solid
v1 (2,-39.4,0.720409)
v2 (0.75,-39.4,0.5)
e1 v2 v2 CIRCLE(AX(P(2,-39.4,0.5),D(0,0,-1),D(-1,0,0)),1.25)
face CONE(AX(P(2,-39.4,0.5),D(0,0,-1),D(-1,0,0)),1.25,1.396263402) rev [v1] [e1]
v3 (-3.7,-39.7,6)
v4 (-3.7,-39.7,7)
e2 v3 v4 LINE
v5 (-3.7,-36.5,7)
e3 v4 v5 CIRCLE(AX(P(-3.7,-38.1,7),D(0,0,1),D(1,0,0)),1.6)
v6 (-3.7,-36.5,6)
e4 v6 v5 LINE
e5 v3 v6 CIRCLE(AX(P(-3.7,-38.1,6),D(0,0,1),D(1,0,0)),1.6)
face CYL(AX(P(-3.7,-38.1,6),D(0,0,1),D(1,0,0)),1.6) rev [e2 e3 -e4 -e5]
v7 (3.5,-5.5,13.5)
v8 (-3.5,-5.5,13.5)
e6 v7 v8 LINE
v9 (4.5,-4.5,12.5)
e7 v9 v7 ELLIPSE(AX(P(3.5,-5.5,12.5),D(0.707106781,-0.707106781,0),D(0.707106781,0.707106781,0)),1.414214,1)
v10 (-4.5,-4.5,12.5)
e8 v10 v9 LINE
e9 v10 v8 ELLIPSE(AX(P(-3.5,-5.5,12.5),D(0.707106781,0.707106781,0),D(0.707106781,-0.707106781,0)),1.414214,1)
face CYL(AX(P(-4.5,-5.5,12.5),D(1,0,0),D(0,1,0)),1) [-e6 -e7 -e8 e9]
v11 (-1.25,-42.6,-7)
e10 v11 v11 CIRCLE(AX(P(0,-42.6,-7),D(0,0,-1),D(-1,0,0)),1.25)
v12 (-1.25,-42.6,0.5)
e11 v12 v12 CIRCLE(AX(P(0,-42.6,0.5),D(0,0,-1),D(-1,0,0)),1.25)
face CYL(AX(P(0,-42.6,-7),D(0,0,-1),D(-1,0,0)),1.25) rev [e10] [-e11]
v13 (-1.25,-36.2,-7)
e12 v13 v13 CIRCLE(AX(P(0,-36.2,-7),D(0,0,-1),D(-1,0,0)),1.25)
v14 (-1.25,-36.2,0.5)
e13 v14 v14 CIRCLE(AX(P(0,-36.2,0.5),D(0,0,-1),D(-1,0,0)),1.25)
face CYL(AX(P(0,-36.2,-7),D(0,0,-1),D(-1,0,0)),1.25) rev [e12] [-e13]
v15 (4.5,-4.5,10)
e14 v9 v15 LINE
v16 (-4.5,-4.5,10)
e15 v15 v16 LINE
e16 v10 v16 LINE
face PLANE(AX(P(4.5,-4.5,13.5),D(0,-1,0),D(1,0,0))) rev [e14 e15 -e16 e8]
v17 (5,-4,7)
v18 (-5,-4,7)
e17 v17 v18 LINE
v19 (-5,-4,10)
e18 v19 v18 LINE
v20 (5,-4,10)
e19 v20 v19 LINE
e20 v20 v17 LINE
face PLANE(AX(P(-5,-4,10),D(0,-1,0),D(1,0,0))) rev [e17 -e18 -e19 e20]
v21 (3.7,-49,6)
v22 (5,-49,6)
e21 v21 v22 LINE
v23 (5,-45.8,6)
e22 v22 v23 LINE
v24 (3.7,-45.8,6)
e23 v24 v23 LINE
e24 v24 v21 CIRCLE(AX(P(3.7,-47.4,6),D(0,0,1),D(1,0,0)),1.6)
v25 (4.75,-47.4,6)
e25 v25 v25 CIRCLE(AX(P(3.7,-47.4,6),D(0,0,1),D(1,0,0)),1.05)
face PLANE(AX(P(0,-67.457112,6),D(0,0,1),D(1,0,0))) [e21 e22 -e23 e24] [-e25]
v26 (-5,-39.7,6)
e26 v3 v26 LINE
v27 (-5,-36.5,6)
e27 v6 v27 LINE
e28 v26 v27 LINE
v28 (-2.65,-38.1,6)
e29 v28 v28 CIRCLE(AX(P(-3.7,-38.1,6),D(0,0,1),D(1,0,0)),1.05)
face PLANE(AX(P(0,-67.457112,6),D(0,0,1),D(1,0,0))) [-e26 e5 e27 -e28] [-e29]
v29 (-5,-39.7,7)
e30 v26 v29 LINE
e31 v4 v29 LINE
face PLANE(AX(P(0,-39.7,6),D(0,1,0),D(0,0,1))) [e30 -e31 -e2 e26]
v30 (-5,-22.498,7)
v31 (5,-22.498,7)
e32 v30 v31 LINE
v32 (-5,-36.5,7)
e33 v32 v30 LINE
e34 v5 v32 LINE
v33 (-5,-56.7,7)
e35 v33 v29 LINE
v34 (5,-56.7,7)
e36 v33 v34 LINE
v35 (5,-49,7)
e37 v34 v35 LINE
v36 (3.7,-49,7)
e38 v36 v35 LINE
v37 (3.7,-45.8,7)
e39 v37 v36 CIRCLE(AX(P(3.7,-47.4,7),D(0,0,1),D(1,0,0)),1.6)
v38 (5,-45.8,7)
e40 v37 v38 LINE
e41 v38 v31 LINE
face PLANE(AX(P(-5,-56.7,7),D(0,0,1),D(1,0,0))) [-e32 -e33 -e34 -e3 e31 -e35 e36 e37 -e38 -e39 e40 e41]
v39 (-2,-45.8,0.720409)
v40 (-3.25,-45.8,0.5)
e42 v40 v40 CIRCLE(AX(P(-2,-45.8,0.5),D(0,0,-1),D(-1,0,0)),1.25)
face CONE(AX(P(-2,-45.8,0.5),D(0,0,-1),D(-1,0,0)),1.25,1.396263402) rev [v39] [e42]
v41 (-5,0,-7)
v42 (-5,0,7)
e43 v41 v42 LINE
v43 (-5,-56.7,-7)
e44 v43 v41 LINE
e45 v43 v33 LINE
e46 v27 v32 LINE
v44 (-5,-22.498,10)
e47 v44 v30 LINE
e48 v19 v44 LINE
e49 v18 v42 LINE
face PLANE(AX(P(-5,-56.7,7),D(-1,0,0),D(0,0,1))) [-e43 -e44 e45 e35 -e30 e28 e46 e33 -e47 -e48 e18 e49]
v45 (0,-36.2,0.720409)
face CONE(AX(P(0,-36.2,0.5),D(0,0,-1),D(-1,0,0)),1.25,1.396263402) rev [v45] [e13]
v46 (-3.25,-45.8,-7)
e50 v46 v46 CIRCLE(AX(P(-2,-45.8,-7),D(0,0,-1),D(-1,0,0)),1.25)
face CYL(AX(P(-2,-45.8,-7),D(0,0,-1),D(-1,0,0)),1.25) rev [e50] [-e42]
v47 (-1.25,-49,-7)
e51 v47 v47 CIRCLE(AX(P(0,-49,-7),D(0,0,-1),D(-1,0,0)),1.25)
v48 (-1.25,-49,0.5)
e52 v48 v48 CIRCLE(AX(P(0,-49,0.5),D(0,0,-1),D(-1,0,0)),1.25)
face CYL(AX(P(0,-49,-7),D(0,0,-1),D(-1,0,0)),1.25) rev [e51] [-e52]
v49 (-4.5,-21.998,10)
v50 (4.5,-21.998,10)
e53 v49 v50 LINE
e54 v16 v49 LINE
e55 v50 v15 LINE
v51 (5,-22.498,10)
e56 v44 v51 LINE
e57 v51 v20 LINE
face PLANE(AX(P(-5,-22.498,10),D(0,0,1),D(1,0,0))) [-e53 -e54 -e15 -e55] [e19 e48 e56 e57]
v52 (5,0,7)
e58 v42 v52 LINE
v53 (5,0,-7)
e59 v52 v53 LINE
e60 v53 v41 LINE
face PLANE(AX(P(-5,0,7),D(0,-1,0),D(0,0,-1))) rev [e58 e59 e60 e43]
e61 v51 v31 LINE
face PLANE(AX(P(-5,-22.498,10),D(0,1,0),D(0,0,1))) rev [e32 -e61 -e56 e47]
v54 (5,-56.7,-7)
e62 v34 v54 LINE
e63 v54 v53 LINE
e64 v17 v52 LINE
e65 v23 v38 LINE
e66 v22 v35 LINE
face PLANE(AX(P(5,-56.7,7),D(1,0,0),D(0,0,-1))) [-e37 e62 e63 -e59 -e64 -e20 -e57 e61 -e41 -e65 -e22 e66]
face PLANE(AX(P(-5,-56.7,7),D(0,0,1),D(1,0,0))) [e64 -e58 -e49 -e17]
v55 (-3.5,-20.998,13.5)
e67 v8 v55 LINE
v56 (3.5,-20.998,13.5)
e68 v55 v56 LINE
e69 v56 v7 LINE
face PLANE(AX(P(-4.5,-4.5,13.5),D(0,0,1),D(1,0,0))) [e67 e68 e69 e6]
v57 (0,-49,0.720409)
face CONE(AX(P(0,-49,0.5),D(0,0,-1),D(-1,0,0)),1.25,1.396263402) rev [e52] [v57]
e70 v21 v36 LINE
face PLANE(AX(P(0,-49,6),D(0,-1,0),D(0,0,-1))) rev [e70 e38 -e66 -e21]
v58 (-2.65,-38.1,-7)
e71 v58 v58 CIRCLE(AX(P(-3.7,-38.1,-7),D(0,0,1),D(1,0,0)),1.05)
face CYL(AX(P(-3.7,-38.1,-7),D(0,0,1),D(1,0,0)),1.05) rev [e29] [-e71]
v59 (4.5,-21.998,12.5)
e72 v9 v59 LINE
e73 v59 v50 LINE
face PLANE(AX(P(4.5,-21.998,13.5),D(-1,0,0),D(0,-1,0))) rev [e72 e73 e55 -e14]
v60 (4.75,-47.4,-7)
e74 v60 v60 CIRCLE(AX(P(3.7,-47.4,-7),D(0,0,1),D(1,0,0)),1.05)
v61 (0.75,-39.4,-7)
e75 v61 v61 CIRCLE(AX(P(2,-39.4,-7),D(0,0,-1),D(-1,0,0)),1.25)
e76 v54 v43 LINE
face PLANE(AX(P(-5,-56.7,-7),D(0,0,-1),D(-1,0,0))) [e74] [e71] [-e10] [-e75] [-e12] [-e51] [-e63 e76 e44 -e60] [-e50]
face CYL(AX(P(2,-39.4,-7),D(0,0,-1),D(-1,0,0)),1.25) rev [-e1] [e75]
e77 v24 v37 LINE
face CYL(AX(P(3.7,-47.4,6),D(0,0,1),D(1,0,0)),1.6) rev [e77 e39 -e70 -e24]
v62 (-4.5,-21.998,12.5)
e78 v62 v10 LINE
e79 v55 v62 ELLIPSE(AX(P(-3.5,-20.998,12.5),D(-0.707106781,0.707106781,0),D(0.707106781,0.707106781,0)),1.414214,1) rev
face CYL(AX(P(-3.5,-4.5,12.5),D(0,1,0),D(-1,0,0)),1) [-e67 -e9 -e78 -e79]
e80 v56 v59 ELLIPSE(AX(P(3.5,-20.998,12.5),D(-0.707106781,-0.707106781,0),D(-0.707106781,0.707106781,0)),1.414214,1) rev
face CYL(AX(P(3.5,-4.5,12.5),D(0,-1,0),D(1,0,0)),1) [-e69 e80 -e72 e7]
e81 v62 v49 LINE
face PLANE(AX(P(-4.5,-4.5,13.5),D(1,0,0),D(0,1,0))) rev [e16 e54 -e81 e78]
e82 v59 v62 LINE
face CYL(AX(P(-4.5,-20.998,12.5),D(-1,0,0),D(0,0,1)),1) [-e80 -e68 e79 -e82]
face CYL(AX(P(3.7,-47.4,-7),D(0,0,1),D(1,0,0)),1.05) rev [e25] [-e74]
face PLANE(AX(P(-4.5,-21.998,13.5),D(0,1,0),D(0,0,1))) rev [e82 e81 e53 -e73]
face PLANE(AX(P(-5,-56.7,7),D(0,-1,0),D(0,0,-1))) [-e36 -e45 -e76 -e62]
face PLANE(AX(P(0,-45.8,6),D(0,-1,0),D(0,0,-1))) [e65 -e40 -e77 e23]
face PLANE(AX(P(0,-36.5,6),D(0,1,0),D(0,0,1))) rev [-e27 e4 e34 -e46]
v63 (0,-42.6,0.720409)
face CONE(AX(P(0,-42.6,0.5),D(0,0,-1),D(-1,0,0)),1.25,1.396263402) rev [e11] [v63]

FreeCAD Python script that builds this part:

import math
import FreeCAD as App
import Part
import Sketcher


def edges_at(feature, points):
    """Names of the edges that pass closest to the given points."""
    edges = feature.Shape.Edges
    near = lambda p: min(range(len(edges)), key=lambda i: edges[i].distToShape(Part.Vertex(*p))[0])
    return sorted({f"Edge{near(p) + 1}" for p in points})

doc = App.newDocument("Part")
params = doc.addObject("Spreadsheet::Sheet", "Params")
for row, (alias, value) in enumerate([
    ("sketch1_width", "10 mm"),
    ("sketch1_height", "14 mm"),
    ("pad1_length", "56.7 mm"),
    ("sketch2_width", "10 mm"),
    ("pad2_length", "3 mm"),
    ("sketch3_diameter", "2.5 mm"),
    ("hole_diameter", "2.5 mm"),
    ("hole_depth", "7.5 mm"),
    ("sketch4_diameter", "2.1 mm"),
    ("sketch5_diameter", "2.1 mm"),
    ("sketch5_radius", "1.6 mm"),
    ("sketch5_width", "1.3 mm"),
    ("pocket2_length", "1 mm"),
    ("sketch6_width", "9 mm"),
    ("pad3_length", "3.5 mm"),
    ("fillet_radius", "1 mm"),
], start=1):
    params.set(f"A{row}", alias)
    params.set(f"B{row}", "=" + value)
    params.setAlias(f"B{row}", alias)

body = doc.addObject("PartDesign::Body", "Body")

sketch1 = body.newObject("Sketcher::SketchObject", "Sketch")
sketch1.AttachmentSupport = (doc.getObject("XZ_Plane"), [""])
sketch1.MapMode = "FlatFace"
sketch1.addGeometry([
    Part.LineSegment(App.Vector(-5, -7, 0), App.Vector(-5, 7, 0)),
    Part.LineSegment(App.Vector(-5, 7, 0), App.Vector(5, 7, 0)),
    Part.LineSegment(App.Vector(5, 7, 0), App.Vector(5, -7, 0)),
    Part.LineSegment(App.Vector(5, -7, 0), App.Vector(-5, -7, 0)),
], False)
sketch1.addConstraint([
    Sketcher.Constraint("Coincident", 0, 2, 1, 1),
    Sketcher.Constraint("Coincident", 1, 2, 2, 1),
    Sketcher.Constraint("Coincident", 2, 2, 3, 1),
    Sketcher.Constraint("Coincident", 3, 2, 0, 1),
    Sketcher.Constraint("Vertical", 0),
    Sketcher.Constraint("Horizontal", 1),
    Sketcher.Constraint("Vertical", 2),
    Sketcher.Constraint("Horizontal", 3),
    Sketcher.Constraint("Symmetric", 0, 2, 2, 2, -1, 1),
    Sketcher.Constraint("DistanceX", 1, 1, 1, 2, 10.0),
    Sketcher.Constraint("DistanceY", 0, 1, 0, 2, 14.0),
])
sketch1.setExpression("Constraints[9]", "Params.sketch1_width")
sketch1.setExpression("Constraints[10]", "Params.sketch1_height")
pad1 = body.newObject("PartDesign::Pad", "Pad")
pad1.Profile = sketch1
pad1.setExpression("Length", "Params.pad1_length")

sketch2 = body.newObject("Sketcher::SketchObject", "Sketch001")
sketch2.AttachmentSupport = (doc.getObject("XY_Plane"), [""])
sketch2.MapMode = "FlatFace"
sketch2.AttachmentOffset = App.Placement(App.Vector(0, 0, 7), App.Rotation())
sketch2.addGeometry([
    Part.LineSegment(App.Vector(-5, -4, 0), App.Vector(-5, -22, 0)),
    Part.LineSegment(App.Vector(-5, -22, 0), App.Vector(5, -22, 0)),
    Part.LineSegment(App.Vector(5, -22, 0), App.Vector(5, -4, 0)),
    Part.LineSegment(App.Vector(5, -4, 0), App.Vector(-5, -4, 0)),
], False)
sketch2.addConstraint([
    Sketcher.Constraint("Coincident", 0, 2, 1, 1),
    Sketcher.Constraint("Coincident", 1, 2, 2, 1),
    Sketcher.Constraint("Coincident", 2, 2, 3, 1),
    Sketcher.Constraint("Coincident", 3, 2, 0, 1),
    Sketcher.Constraint("Vertical", 0),
    Sketcher.Constraint("Horizontal", 1),
    Sketcher.Constraint("Vertical", 2),
    Sketcher.Constraint("Horizontal", 3),
    Sketcher.Constraint("DistanceX", 1, 1, 1, 2, 10.0),
    Sketcher.Constraint("DistanceX", 0, 2, -1, 1, 5.0),
    Sketcher.Constraint("DistanceY", 2, 2, -1, 1, 4.0),
    Sketcher.Constraint("DistanceY", 0, 2, 0, 1, 18.498),
])
sketch2.setExpression("Constraints[8]", "Params.sketch2_width")
pad2 = body.newObject("PartDesign::Pad", "Pad001")
pad2.Profile = sketch2
pad2.setExpression("Length", "Params.pad2_length")

sketch3 = body.newObject("Sketcher::SketchObject", "Sketch002")
sketch3.AttachmentSupport = (doc.getObject("XY_Plane"), [""])
sketch3.MapMode = "FlatFace"
sketch3.AttachmentOffset = App.Placement(App.Vector(0, 0, -7), App.Rotation())
sketch3.addGeometry([
    Part.Circle(App.Vector(0, -36.2, 0), App.Vector(0, 0, 1), 1.2),
    Part.Circle(App.Vector(0, -42.6, 0), App.Vector(0, 0, 1), 1.2),
    Part.Circle(App.Vector(0, -49, 0), App.Vector(0, 0, 1), 1.2),
    Part.Circle(App.Vector(-2, -45.8, 0), App.Vector(0, 0, 1), 1.2),
    Part.Circle(App.Vector(2, -39.4, 0), App.Vector(0, 0, 1), 1.2),
], False)
sketch3.addConstraint([
    Sketcher.Constraint("Equal", 0, 1),
    Sketcher.Constraint("Equal", 1, 2),
    Sketcher.Constraint("Equal", 2, 3),
    Sketcher.Constraint("Equal", 3, 4),
    Sketcher.Constraint("PointOnObject", 0, 3, -2),
    Sketcher.Constraint("PointOnObject", 1, 3, -2),
    Sketcher.Constraint("PointOnObject", 2, 3, -2),
    Sketcher.Constraint("Diameter", 0, 2.5),
    Sketcher.Constraint("DistanceY", 2, 3, -1, 1, 49.0),
    Sketcher.Constraint("DistanceX", 3, 3, -1, 1, 2.0),
    Sketcher.Constraint("DistanceX", -1, 1, 4, 3, 2.0),
    Sketcher.Constraint("DistanceY", 0, 3, -1, 1, 36.2),
    Sketcher.Constraint("DistanceY", 1, 3, -1, 1, 42.6),
    Sketcher.Constraint("DistanceY", 3, 3, -1, 1, 45.8),
    Sketcher.Constraint("DistanceY", 4, 3, -1, 1, 39.4),
])
sketch3.setExpression("Constraints[7]", "Params.sketch3_diameter")
doc.recompute()
hole = body.newObject("PartDesign::Hole", "Hole")
hole.Profile = sketch3
hole.ThreadType = "None"
hole.setExpression("Diameter", "Params.hole_diameter")
hole.DepthType = "Dimension"
hole.setExpression("Depth", "Params.hole_depth")
hole.DrillPoint = "Angled"
hole.DrillPointAngle = 160
hole.Reversed = True

sketch4 = body.newObject("Sketcher::SketchObject", "Sketch003")
sketch4.AttachmentSupport = (doc.getObject("XY_Plane"), [""])
sketch4.MapMode = "FlatFace"
sketch4.AttachmentOffset = App.Placement(App.Vector(0, 0, 7), App.Rotation())
sketch4.addGeometry([
    Part.Circle(App.Vector(-3.7, -38.1, 0), App.Vector(0, 0, 1), 1.1),
    Part.Circle(App.Vector(3.7, -47.4, 0), App.Vector(0, 0, 1), 1.1),
], False)
sketch4.addConstraint([
    Sketcher.Constraint("Equal", 0, 1),
    Sketcher.Constraint("Diameter", 0, 2.1),
    Sketcher.Constraint("DistanceX", 0, 3, -1, 1, 3.7),
    Sketcher.Constraint("DistanceY", 0, 3, -1, 1, 38.1),
    Sketcher.Constraint("DistanceX", -1, 1, 1, 3, 3.7),
    Sketcher.Constraint("DistanceY", 1, 3, -1, 1, 47.4),
])
sketch4.setExpression("Constraints[1]", "Params.sketch4_diameter")
pocket1 = body.newObject("PartDesign::Pocket", "Pocket")
pocket1.Profile = sketch4
pocket1.Type = "ThroughAll"

sketch5 = body.newObject("Sketcher::SketchObject", "Sketch004")
sketch5.AttachmentSupport = (doc.getObject("XY_Plane"), [""])
sketch5.MapMode = "FlatFace"
sketch5.AttachmentOffset = App.Placement(App.Vector(0, 0, 7), App.Rotation())
sketch5.addGeometry([
    Part.ArcOfCircle(Part.Circle(App.Vector(-3.7, -38.1, 0), App.Vector(0, 0, 1), 1.6), math.radians(0), math.radians(90)),
    Part.LineSegment(App.Vector(-3.7, -36.5, 0), App.Vector(-5, -36.5, 0)),
    Part.LineSegment(App.Vector(-5, -36.5, 0), App.Vector(-5, -39.7, 0)),
    Part.LineSegment(App.Vector(-5, -39.7, 0), App.Vector(-3.7, -39.7, 0)),
    Part.ArcOfCircle(Part.Circle(App.Vector(-3.7, -38.1, 0), App.Vector(0, 0, 1), 1.6), math.radians(-90), math.radians(0)),
    Part.Circle(App.Vector(-3.7, -38.1, 0), App.Vector(0, 0, 1), 1.1),
    Part.LineSegment(App.Vector(5, -45.8, 0), App.Vector(3.7, -45.8, 0)),
    Part.ArcOfCircle(Part.Circle(App.Vector(3.7, -47.4, 0), App.Vector(0, 0, 1), 1.6), math.radians(90), math.radians(270)),
    Part.LineSegment(App.Vector(3.7, -49, 0), App.Vector(5, -49, 0)),
    Part.LineSegment(App.Vector(5, -49, 0), App.Vector(5, -45.8, 0)),
    Part.Circle(App.Vector(3.7, -47.4, 0), App.Vector(0, 0, 1), 1.1),
], False)
sketch5.addConstraint([
    Sketcher.Constraint("Tangent", 0, 2, 1, 1),
    Sketcher.Constraint("Coincident", 1, 2, 2, 1),
    Sketcher.Constraint("Coincident", 2, 2, 3, 1),
    Sketcher.Constraint("Tangent", 3, 2, 4, 1),
    Sketcher.Constraint("Tangent", 4, 2, 0, 1),
    Sketcher.Constraint("Tangent", 6, 2, 7, 1),
    Sketcher.Constraint("Tangent", 7, 2, 8, 1),
    Sketcher.Constraint("Coincident", 8, 2, 9, 1),
    Sketcher.Constraint("Coincident", 9, 2, 6, 1),
    Sketcher.Constraint("Horizontal", 1),
    Sketcher.Constraint("Vertical", 2),
    Sketcher.Constraint("Horizontal", 3),
    Sketcher.Constraint("Horizontal", 6),
    Sketcher.Constraint("Horizontal", 8),
    Sketcher.Constraint("Vertical", 9),
    Sketcher.Constraint("Coincident", 5, 3, 0, 3),
    Sketcher.Constraint("Coincident", 10, 3, 7, 3),
    Sketcher.Constraint("Equal", 0, 4),
    Sketcher.Constraint("Equal", 4, 7),
    Sketcher.Constraint("Equal", 5, 10),
    Sketcher.Constraint("Horizontal", 5, 3, 4, 2),
    Sketcher.Constraint("Equal", 3, 6),
    Sketcher.Constraint("Diameter", 5, 2.1),
    Sketcher.Constraint("Radius", 0, 1.6),
    Sketcher.Constraint("DistanceX", 1, 2, 1, 1, 1.3),
    Sketcher.Constraint("DistanceX", 1, 2, -1, 1, 5.0),
    Sketcher.Constraint("DistanceY", 7, 2, -1, 1, 49.0),
    Sketcher.Constraint("DistanceX", -1, 1, 8, 2, 5.0),
    Sketcher.Constraint("DistanceY", 0, 3, -1, 1, 38.1),
])
sketch5.setExpression("Constraints[22]", "Params.sketch5_diameter")
sketch5.setExpression("Constraints[23]", "Params.sketch5_radius")
sketch5.setExpression("Constraints[24]", "Params.sketch5_width")
pocket2 = body.newObject("PartDesign::Pocket", "Pocket001")
pocket2.Profile = sketch5
pocket2.setExpression("Length", "Params.pocket2_length")

sketch6 = body.newObject("Sketcher::SketchObject", "Sketch005")
sketch6.AttachmentSupport = (doc.getObject("XY_Plane"), [""])
sketch6.MapMode = "FlatFace"
sketch6.AttachmentOffset = App.Placement(App.Vector(0, 0, 10), App.Rotation())
sketch6.addGeometry([
    Part.LineSegment(App.Vector(-4, -4, 0), App.Vector(-4, -22, 0)),
    Part.LineSegment(App.Vector(-4, -22, 0), App.Vector(4, -22, 0)),
    Part.LineSegment(App.Vector(4, -22, 0), App.Vector(4, -4, 0)),
    Part.LineSegment(App.Vector(4, -4, 0), App.Vector(-4, -4, 0)),
], False)
sketch6.addConstraint([
    Sketcher.Constraint("Coincident", 0, 2, 1, 1),
    Sketcher.Constraint("Coincident", 1, 2, 2, 1),
    Sketcher.Constraint("Coincident", 2, 2, 3, 1),
    Sketcher.Constraint("Coincident", 3, 2, 0, 1),
    Sketcher.Constraint("Vertical", 0),
    Sketcher.Constraint("Horizontal", 1),
    Sketcher.Constraint("Vertical", 2),
    Sketcher.Constraint("Horizontal", 3),
    Sketcher.Constraint("DistanceX", 1, 1, 1, 2, 9.0),
    Sketcher.Constraint("DistanceX", 0, 2, -1, 1, 4.5),
    Sketcher.Constraint("DistanceY", 2, 2, -1, 1, 4.5),
    Sketcher.Constraint("DistanceY", 0, 2, 0, 1, 17.498),
])
sketch6.setExpression("Constraints[8]", "Params.sketch6_width")
pad3 = body.newObject("PartDesign::Pad", "Pad002")
pad3.Profile = sketch6
pad3.setExpression("Length", "Params.pad3_length")
doc.recompute()

fillet = body.newObject("PartDesign::Fillet", "Fillet")
fillet.Base = (pad3, edges_at(pad3, [
    (0, -4.5, 13.5),
    (-4.5, -13.249, 13.5),
    (0, -21.998, 13.5),
    (4.5, -13.249, 13.5),
]))
fillet.setExpression("Radius", "Params.fillet_radius")

doc.recompute()
